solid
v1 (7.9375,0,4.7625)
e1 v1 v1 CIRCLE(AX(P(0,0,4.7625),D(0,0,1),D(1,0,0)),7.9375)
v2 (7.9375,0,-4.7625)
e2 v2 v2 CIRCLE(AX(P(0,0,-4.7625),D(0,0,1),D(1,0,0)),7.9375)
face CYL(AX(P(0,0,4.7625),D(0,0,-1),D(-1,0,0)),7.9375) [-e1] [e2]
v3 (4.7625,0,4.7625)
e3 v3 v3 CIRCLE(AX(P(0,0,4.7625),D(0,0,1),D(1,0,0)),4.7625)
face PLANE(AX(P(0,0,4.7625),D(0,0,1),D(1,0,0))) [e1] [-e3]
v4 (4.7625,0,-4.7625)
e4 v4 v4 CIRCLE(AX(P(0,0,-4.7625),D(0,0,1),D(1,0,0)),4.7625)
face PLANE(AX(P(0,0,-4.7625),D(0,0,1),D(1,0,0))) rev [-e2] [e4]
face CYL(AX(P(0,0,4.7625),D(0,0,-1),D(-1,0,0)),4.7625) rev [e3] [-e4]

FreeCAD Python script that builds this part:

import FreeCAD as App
import Part
import Sketcher

V = App.Vector
Q = App.Units.Quantity

doc = App.newDocument("Part")
body = doc.addObject("PartDesign::Body", "Body")

sketch1 = body.newObject("Sketcher::SketchObject", "Sketch")
sketch1.AttachmentSupport = (doc.getObject("XY_Plane"), [""])
sketch1.MapMode = "FlatFace"
sketch1.addGeometry(Part.Circle(V(0, 0, 0), V(0, 0, 1), 7.9), False)
sketch1.addGeometry(Part.Circle(V(0, 0, 0), V(0, 0, 1), 4.8), False)
sketch1.addConstraint(Sketcher.Constraint("Coincident", 0, 3, -1, 1))
sketch1.addConstraint(Sketcher.Constraint("Coincident", 1, 3, -1, 1))
sketch1.addConstraint(Sketcher.Constraint("Diameter", 0, Q("0.625 in")))
sketch1.addConstraint(Sketcher.Constraint("Diameter", 1, Q("0.375 in")))
pad1 = body.newObject("PartDesign::Pad", "Pad")
pad1.Profile = sketch1
pad1.Length = Q("0.375 in")
pad1.Midplane = True

doc.recompute()
